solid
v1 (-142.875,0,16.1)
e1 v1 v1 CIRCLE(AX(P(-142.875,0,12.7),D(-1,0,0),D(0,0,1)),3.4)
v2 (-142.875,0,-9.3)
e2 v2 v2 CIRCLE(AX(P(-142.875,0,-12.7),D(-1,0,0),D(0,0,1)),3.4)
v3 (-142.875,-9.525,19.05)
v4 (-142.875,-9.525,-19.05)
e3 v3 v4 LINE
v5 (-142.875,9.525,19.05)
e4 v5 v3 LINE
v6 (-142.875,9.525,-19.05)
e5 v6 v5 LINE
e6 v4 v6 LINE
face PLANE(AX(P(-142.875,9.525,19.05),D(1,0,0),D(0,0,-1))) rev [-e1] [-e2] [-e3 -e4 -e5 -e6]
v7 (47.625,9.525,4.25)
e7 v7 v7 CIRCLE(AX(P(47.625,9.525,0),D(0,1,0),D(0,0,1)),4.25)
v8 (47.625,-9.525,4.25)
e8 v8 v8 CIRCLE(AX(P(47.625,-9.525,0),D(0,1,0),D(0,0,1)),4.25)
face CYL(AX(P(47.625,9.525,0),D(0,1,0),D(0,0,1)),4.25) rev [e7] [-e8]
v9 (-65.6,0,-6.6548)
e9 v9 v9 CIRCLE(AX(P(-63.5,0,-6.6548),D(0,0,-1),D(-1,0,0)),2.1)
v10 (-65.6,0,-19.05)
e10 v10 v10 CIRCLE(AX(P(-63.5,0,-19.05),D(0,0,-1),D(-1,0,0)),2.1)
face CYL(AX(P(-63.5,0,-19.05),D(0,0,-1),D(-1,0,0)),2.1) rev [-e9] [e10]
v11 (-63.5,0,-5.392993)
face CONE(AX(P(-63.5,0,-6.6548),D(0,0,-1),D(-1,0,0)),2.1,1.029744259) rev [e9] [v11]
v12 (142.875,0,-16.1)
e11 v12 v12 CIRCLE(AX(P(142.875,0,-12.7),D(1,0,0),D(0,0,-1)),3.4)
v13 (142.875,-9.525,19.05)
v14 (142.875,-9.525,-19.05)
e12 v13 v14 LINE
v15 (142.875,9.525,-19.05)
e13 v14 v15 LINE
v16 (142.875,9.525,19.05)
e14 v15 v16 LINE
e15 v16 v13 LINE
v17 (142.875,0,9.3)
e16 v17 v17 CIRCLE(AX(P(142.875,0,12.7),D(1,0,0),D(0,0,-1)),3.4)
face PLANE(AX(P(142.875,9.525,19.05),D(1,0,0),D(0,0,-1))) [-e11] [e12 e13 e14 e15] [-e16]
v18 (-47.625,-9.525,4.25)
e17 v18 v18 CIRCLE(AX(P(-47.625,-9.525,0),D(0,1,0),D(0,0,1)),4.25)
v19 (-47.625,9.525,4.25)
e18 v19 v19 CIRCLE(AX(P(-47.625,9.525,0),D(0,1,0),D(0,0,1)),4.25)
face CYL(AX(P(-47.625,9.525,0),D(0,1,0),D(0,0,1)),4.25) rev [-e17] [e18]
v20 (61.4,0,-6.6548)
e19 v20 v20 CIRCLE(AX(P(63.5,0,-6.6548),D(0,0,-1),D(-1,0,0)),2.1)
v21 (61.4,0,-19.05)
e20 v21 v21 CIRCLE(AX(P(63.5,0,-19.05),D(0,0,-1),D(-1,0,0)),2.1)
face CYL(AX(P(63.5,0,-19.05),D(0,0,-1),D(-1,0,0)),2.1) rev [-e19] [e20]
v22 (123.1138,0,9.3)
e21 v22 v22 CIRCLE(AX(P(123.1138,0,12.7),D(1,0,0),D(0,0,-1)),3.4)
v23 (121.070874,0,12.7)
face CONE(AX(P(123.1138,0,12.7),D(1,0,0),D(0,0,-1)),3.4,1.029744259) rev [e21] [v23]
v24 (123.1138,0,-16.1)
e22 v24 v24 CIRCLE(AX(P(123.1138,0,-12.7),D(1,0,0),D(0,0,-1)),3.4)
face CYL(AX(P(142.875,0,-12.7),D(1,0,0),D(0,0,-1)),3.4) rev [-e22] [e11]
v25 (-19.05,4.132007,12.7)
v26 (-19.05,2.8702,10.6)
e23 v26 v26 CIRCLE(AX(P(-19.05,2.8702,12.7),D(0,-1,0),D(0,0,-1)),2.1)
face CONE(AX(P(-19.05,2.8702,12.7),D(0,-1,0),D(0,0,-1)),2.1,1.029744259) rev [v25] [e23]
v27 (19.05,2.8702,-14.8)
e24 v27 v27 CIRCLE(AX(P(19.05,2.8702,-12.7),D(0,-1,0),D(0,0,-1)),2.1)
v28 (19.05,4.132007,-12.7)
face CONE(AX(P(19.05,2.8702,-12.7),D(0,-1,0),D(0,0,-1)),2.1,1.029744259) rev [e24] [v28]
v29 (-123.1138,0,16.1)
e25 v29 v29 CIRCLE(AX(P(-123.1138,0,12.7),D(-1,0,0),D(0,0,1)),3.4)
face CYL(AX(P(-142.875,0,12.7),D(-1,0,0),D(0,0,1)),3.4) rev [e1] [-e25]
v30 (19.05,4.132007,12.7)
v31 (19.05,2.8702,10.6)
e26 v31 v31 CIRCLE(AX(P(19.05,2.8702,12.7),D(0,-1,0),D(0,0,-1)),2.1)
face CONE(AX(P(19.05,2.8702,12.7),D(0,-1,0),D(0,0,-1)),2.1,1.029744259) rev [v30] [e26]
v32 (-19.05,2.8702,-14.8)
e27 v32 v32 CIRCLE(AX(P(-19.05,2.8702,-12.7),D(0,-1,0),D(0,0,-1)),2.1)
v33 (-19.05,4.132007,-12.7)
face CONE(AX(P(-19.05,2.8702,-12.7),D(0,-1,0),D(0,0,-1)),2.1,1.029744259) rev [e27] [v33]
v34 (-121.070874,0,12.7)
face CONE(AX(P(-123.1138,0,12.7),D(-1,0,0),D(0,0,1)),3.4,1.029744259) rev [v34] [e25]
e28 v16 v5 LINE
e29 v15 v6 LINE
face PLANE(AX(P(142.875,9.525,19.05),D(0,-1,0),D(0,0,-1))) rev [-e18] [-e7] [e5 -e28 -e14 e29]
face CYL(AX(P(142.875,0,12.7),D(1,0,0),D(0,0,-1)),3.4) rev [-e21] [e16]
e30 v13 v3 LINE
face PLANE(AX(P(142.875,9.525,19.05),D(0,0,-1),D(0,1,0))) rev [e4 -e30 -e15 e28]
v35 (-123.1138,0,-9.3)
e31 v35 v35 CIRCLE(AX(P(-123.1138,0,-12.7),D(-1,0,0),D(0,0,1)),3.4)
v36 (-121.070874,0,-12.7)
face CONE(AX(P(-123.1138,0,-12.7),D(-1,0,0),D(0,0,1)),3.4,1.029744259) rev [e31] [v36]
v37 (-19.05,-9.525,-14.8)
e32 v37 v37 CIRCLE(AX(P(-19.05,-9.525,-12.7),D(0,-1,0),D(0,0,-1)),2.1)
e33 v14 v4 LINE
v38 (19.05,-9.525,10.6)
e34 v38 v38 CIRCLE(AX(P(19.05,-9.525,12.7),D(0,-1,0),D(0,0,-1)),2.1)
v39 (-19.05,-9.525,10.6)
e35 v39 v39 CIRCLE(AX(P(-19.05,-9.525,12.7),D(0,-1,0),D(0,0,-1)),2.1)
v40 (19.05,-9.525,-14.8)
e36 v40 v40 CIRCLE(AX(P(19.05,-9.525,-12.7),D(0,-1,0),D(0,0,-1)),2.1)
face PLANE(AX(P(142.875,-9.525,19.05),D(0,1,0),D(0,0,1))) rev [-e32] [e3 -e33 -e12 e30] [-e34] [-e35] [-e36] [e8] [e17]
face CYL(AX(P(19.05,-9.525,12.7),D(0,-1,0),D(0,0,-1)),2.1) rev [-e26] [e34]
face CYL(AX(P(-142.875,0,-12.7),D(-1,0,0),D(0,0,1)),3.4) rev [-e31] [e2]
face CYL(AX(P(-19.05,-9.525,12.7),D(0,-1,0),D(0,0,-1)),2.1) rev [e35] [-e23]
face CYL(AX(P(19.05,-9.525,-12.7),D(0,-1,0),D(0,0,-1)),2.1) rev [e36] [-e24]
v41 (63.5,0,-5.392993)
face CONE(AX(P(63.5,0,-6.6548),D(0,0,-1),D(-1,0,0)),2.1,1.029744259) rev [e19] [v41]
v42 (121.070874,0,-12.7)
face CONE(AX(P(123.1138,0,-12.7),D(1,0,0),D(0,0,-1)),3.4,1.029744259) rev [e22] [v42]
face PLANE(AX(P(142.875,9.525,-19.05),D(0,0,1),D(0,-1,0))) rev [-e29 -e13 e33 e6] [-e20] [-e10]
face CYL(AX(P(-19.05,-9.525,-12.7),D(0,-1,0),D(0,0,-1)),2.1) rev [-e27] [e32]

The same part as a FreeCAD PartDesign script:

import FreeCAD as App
import Part
import Sketcher
from FreeCAD import Vector
Q = App.Units.Quantity

doc = App.newDocument("Part")
body = doc.addObject("PartDesign::Body", "Body")

# Sketch on YZ plane
sketch1 = body.newObject("Sketcher::SketchObject", "Sketch")
sketch1.AttachmentSupport = (doc.getObject("YZ_Plane"), [""])
sketch1.MapMode = "FlatFace"
sketch1.addGeometry([
    Part.LineSegment(Vector(9.525, 19.05, 0), Vector(-9.525, 19.05, 0)),
    Part.LineSegment(Vector(-9.525, 19.05, 0), Vector(-9.525, -19.05, 0)),
    Part.LineSegment(Vector(-9.525, -19.05, 0), Vector(9.525, -19.05, 0)),
    Part.LineSegment(Vector(9.525, -19.05, 0), Vector(9.525, 19.05, 0)),
], False)
sketch1.addConstraint([
    Sketcher.Constraint("Coincident", 0, 2, 1, 1),
    Sketcher.Constraint("Coincident", 1, 2, 2, 1),
    Sketcher.Constraint("Coincident", 2, 2, 3, 1),
    Sketcher.Constraint("Coincident", 3, 2, 0, 1),
    Sketcher.Constraint("Horizontal", 0),
    Sketcher.Constraint("Vertical", 1),
    Sketcher.Constraint("Horizontal", 2),
    Sketcher.Constraint("Vertical", 3),
    Sketcher.Constraint("Symmetric", 0, 2, 2, 2, -1, 1),
    Sketcher.Constraint("DistanceY", 1, 2, 1, 1, Q("1.5 in")),
    Sketcher.Constraint("DistanceX", 0, 2, 0, 1, Q("0.75 in")),
])
pad1 = body.newObject("PartDesign::Pad", "Pad")
pad1.Profile = sketch1
pad1.Length = Q("11.25 in")
pad1.Midplane = True

# Sketch on XZ plane
sketch2 = body.newObject("Sketcher::SketchObject", "Sketch001")
sketch2.AttachmentSupport = (doc.getObject("XZ_Plane"), [""])
sketch2.MapMode = "FlatFace"
sketch2.addGeometry([
    Part.LineSegment(Vector(121.070874, 12.7, 0), Vector(142.875, 12.7, 0)),
    Part.LineSegment(Vector(142.875, 12.7, 0), Vector(142.875, 9.3, 0)),
    Part.LineSegment(Vector(142.875, 9.3, 0), Vector(123.1138, 9.3, 0)),
    Part.LineSegment(Vector(123.1138, 9.3, 0), Vector(121.070874, 12.7, 0)),
], False)
sketch2.addGeometry(Part.LineSegment(Vector(142.875, 12.7, 0), Vector(121.070874, 12.7, 0)), True)  # axis
sketch2.addConstraint([
    Sketcher.Constraint("Coincident", 0, 2, 1, 1),
    Sketcher.Constraint("Coincident", 1, 2, 2, 1),
    Sketcher.Constraint("Coincident", 2, 2, 3, 1),
    Sketcher.Constraint("Coincident", 3, 2, 0, 1),
    Sketcher.Constraint("Horizontal", 0),
    Sketcher.Constraint("Vertical", 1),
    Sketcher.Constraint("Horizontal", 2),
    Sketcher.Constraint("Horizontal", 4),
    Sketcher.Constraint("Coincident", 4, 1, 0, 2),
    Sketcher.Constraint("Equal", 0, 4),
    Sketcher.Constraint("Angle", 3, Q("121 deg")),
    Sketcher.Constraint("DistanceY", -1, 1, 0, 2, Q("0.5 in")),
    Sketcher.Constraint("DistanceX", 2, 2, 2, 1, Q("0.778 in")),
    Sketcher.Constraint("DistanceX", -1, 1, 0, 2, Q("5.625 in")),
    Sketcher.Constraint("DistanceY", 1, 2, 1, 1, 3.4),
])
groove = body.newObject("PartDesign::Groove", "Groove")
groove.Profile = sketch2
groove.ReferenceAxis = (sketch2, ["Axis0"])
groove.Angle = 360
doc.recompute()

linearpattern = body.newObject("PartDesign::LinearPattern", "LinearPattern")
linearpattern.Originals = [groove]
linearpattern.Direction = (doc.getObject("Z_Axis"), [""])
linearpattern.Mode = "offset"
linearpattern.Offset = Q("1 in")
linearpattern.Occurrences = 2
linearpattern.Reversed = True
body.Tip = linearpattern
doc.recompute()

mirrored = body.newObject("PartDesign::Mirrored", "Mirrored")
mirrored.Originals = [groove]
mirrored.MirrorPlane = (doc.getObject("YZ_Plane"), [""])
body.Tip = mirrored

# Sketch on XZ plane
sketch3 = body.newObject("Sketcher::SketchObject", "Sketch002")
sketch3.AttachmentSupport = (doc.getObject("XZ_Plane"), [""])
sketch3.MapMode = "FlatFace"
sketch3.addGeometry([
    Part.LineSegment(Vector(-142.875, -12.7, 0), Vector(-121.070874, -12.7, 0)),
    Part.LineSegment(Vector(-121.070874, -12.7, 0), Vector(-123.1138, -16.1, 0)),
    Part.LineSegment(Vector(-123.1138, -16.1, 0), Vector(-142.875, -16.1, 0)),
    Part.LineSegment(Vector(-142.875, -16.1, 0), Vector(-142.875, -12.7, 0)),
], False)
sketch3.addGeometry(Part.LineSegment(Vector(-121.070874, -12.7, 0), Vector(-142.875, -12.7, 0)), True)  # axis
sketch3.addConstraint([
    Sketcher.Constraint("Coincident", 0, 2, 1, 1),
    Sketcher.Constraint("Coincident", 1, 2, 2, 1),
    Sketcher.Constraint("Coincident", 2, 2, 3, 1),
    Sketcher.Constraint("Coincident", 3, 2, 0, 1),
    Sketcher.Constraint("Horizontal", 0),
    Sketcher.Constraint("Horizontal", 2),
    Sketcher.Constraint("Vertical", 3),
    Sketcher.Constraint("Horizontal", 4),
    Sketcher.Constraint("Coincident", 4, 1, 0, 2),
    Sketcher.Constraint("Vertical", 2, 2, 4, 2),
    Sketcher.Constraint("Angle", 1, Q("-121 deg")),
    Sketcher.Constraint("DistanceY", 0, 2, -1, 1, Q("0.5 in")),
    Sketcher.Constraint("DistanceX", 2, 2, 2, 1, Q("0.778 in")),
    Sketcher.Constraint("DistanceX", 1, 2, -1, 1, Q("4.847 in")),
    Sketcher.Constraint("DistanceY", 3, 1, 3, 2, 3.4),
])
groove2 = body.newObject("PartDesign::Groove", "Groove001")
groove2.Profile = sketch3
groove2.ReferenceAxis = (sketch3, ["Axis0"])
groove2.Angle = 360

# Sketch on XZ plane
sketch4 = body.newObject("Sketcher::SketchObject", "Sketch003")
sketch4.AttachmentSupport = (doc.getObject("XZ_Plane"), [""])
sketch4.MapMode = "FlatFace"
sketch4.AttachmentOffset = App.Placement(Vector(0, 0, -0.375 * 25.4), App.Rotation())
sketch4.addGeometry([
    Part.Circle(Vector(-47.625, 0, 0), Vector(0, 0, 1), 4.25),
    Part.Circle(Vector(47.625, 0, 0), Vector(0, 0, 1), 4.25),
], False)
sketch4.addConstraint([
    Sketcher.Constraint("Equal", 0, 1),
    Sketcher.Constraint("Symmetric", 0, 3, 1, 3, -1, 1),
    Sketcher.Constraint("PointOnObject", 0, 3, -1),
    Sketcher.Constraint("Diameter", 0, 8.5),
    Sketcher.Constraint("DistanceX", 0, 3, 1, 3, Q("3.75 in")),
])
doc.recompute()
hole = body.newObject("PartDesign::Hole", "Hole")
hole.Profile = sketch4
hole.ThreadType = "None"
hole.Diameter = 8.5
hole.DepthType = "ThroughAll"
hole.Reversed = True

# Sketch on XY plane
sketch5 = body.newObject("Sketcher::SketchObject", "Sketch004")
sketch5.AttachmentSupport = (doc.getObject("XY_Plane"), [""])
sketch5.MapMode = "FlatFace"
sketch5.AttachmentOffset = App.Placement(Vector(0, 0, -0.75 * 25.4), App.Rotation())
sketch5.addGeometry([
    Part.Circle(Vector(63.5, 0, 0), Vector(0, 0, 1), 2.1),
    Part.Circle(Vector(-63.5, 0, 0), Vector(0, 0, 1), 2.1),
], False)
sketch5.addConstraint([
    Sketcher.Constraint("Equal", 0, 1),
    Sketcher.Constraint("Symmetric", 0, 3, 1, 3, -1, 1),
    Sketcher.Constraint("PointOnObject", 0, 3, -1),
    Sketcher.Constraint("DistanceX", 1, 3, 0, 3, Q("5 in")),
    Sketcher.Constraint("Diameter", 0, 4.2),
])
doc.recompute()
hole2 = body.newObject("PartDesign::Hole", "Hole001")
hole2.Profile = sketch5
hole2.ThreadType = "None"
hole2.Diameter = 4.2
hole2.DepthType = "Dimension"
hole2.Depth = Q("0.488 in")
hole2.DrillPoint = "Angled"
hole2.DrillPointAngle = 118
hole2.Reversed = True

# Sketch on XZ plane
sketch6 = body.newObject("Sketcher::SketchObject", "Sketch005")
sketch6.AttachmentSupport = (doc.getObject("XZ_Plane"), [""])
sketch6.MapMode = "FlatFace"
sketch6.AttachmentOffset = App.Placement(Vector(0, 0, 0.375 * 25.4), App.Rotation())
sketch6.addGeometry([
    Part.Circle(Vector(19.05, -12.7, 0), Vector(0, 0, 1), 2.1),
    Part.Circle(Vector(-19.05, -12.7, 0), Vector(0, 0, 1), 2.1),
    Part.Circle(Vector(-19.05, 12.7, 0), Vector(0, 0, 1), 2.1),
    Part.Circle(Vector(19.05, 12.7, 0), Vector(0, 0, 1), 2.1),
], False)
sketch6.addConstraint([
    Sketcher.Constraint("Equal", 0, 1),
    Sketcher.Constraint("Equal", 1, 2),
    Sketcher.Constraint("Equal", 2, 3),
    Sketcher.Constraint("Symmetric", 0, 3, 2, 3, -1, 1),
    Sketcher.Constraint("Symmetric", 1, 3, 3, 3, -1, 1),
    Sketcher.Constraint("Symmetric", 0, 3, 1, 3, -2),
    Sketcher.Constraint("DistanceY", 1, 3, 2, 3, Q("1 in")),
    Sketcher.Constraint("DistanceX", 1, 3, 0, 3, Q("1.5 in")),
    Sketcher.Constraint("Diameter", 0, 4.2),
])
doc.recompute()
hole3 = body.newObject("PartDesign::Hole", "Hole002")
hole3.Profile = sketch6
hole3.ThreadType = "None"
hole3.Diameter = 4.2
hole3.DepthType = "Dimension"
hole3.Depth = Q("0.488 in")
hole3.DrillPoint = "Angled"
hole3.DrillPointAngle = 118

doc.recompute()
